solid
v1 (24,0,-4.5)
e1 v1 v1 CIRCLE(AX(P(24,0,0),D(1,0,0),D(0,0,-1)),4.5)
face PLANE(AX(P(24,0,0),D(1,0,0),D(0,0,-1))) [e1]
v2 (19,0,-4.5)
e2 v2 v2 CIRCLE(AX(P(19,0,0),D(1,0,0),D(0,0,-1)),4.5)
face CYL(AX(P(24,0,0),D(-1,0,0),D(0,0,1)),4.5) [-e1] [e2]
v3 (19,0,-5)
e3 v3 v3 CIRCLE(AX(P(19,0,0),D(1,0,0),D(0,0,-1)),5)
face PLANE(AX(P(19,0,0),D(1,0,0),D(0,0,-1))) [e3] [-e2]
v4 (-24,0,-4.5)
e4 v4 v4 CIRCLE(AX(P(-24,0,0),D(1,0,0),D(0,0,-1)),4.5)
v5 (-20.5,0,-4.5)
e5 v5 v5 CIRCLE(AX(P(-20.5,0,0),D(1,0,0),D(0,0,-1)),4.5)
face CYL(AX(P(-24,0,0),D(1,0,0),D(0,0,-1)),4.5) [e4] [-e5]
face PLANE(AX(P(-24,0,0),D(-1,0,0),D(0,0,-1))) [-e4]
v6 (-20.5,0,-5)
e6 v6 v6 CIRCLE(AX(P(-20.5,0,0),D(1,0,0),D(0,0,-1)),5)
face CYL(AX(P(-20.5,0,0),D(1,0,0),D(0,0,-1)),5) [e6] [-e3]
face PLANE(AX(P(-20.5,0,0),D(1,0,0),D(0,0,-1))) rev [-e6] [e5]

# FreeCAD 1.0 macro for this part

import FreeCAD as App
import Part
import Sketcher
from FreeCAD import Vector

doc = App.newDocument("Part")
body = doc.addObject("PartDesign::Body", "Body")

sketch1 = body.newObject("Sketcher::SketchObject", "Sketch")
sketch1.AttachmentSupport = (doc.getObject("YZ_Plane"), [""])
sketch1.MapMode = "FlatFace"
sketch1.addGeometry(Part.Circle(Vector(0, 0, 0), Vector(0, 0, 1), 5), False)
sketch1.addConstraint([
    Sketcher.Constraint("Coincident", 0, 3, -1, 1),
    Sketcher.Constraint("Diameter", 0, 10.0),
])
pad1 = body.newObject("PartDesign::Pad", "Pad")
pad1.Profile = sketch1
pad1.Type = "TwoLengths"
pad1.Length = 19
pad1.Length2 = 20.5

sketch2 = body.newObject("Sketcher::SketchObject", "Sketch001")
sketch2.AttachmentSupport = (doc.getObject("YZ_Plane"), [""])
sketch2.MapMode = "FlatFace"
sketch2.AttachmentOffset = App.Placement(Vector(0, 0, 19), App.Rotation())
sketch2.addGeometry(Part.Circle(Vector(0, 0, 0), Vector(0, 0, 1), 4.5), False)
sketch2.addConstraint([
    Sketcher.Constraint("Coincident", 0, 3, -1, 1),
    Sketcher.Constraint("Diameter", 0, 9.0),
])
pad2 = body.newObject("PartDesign::Pad", "Pad001")
pad2.Profile = sketch2
pad2.Length = 5
doc.recompute()

mirrored = body.newObject("PartDesign::Mirrored", "Mirrored")
mirrored.Originals = [pad2]
mirrored.MirrorPlane = (doc.getObject("YZ_Plane"), [""])
body.Tip = mirrored

doc.recompute()
